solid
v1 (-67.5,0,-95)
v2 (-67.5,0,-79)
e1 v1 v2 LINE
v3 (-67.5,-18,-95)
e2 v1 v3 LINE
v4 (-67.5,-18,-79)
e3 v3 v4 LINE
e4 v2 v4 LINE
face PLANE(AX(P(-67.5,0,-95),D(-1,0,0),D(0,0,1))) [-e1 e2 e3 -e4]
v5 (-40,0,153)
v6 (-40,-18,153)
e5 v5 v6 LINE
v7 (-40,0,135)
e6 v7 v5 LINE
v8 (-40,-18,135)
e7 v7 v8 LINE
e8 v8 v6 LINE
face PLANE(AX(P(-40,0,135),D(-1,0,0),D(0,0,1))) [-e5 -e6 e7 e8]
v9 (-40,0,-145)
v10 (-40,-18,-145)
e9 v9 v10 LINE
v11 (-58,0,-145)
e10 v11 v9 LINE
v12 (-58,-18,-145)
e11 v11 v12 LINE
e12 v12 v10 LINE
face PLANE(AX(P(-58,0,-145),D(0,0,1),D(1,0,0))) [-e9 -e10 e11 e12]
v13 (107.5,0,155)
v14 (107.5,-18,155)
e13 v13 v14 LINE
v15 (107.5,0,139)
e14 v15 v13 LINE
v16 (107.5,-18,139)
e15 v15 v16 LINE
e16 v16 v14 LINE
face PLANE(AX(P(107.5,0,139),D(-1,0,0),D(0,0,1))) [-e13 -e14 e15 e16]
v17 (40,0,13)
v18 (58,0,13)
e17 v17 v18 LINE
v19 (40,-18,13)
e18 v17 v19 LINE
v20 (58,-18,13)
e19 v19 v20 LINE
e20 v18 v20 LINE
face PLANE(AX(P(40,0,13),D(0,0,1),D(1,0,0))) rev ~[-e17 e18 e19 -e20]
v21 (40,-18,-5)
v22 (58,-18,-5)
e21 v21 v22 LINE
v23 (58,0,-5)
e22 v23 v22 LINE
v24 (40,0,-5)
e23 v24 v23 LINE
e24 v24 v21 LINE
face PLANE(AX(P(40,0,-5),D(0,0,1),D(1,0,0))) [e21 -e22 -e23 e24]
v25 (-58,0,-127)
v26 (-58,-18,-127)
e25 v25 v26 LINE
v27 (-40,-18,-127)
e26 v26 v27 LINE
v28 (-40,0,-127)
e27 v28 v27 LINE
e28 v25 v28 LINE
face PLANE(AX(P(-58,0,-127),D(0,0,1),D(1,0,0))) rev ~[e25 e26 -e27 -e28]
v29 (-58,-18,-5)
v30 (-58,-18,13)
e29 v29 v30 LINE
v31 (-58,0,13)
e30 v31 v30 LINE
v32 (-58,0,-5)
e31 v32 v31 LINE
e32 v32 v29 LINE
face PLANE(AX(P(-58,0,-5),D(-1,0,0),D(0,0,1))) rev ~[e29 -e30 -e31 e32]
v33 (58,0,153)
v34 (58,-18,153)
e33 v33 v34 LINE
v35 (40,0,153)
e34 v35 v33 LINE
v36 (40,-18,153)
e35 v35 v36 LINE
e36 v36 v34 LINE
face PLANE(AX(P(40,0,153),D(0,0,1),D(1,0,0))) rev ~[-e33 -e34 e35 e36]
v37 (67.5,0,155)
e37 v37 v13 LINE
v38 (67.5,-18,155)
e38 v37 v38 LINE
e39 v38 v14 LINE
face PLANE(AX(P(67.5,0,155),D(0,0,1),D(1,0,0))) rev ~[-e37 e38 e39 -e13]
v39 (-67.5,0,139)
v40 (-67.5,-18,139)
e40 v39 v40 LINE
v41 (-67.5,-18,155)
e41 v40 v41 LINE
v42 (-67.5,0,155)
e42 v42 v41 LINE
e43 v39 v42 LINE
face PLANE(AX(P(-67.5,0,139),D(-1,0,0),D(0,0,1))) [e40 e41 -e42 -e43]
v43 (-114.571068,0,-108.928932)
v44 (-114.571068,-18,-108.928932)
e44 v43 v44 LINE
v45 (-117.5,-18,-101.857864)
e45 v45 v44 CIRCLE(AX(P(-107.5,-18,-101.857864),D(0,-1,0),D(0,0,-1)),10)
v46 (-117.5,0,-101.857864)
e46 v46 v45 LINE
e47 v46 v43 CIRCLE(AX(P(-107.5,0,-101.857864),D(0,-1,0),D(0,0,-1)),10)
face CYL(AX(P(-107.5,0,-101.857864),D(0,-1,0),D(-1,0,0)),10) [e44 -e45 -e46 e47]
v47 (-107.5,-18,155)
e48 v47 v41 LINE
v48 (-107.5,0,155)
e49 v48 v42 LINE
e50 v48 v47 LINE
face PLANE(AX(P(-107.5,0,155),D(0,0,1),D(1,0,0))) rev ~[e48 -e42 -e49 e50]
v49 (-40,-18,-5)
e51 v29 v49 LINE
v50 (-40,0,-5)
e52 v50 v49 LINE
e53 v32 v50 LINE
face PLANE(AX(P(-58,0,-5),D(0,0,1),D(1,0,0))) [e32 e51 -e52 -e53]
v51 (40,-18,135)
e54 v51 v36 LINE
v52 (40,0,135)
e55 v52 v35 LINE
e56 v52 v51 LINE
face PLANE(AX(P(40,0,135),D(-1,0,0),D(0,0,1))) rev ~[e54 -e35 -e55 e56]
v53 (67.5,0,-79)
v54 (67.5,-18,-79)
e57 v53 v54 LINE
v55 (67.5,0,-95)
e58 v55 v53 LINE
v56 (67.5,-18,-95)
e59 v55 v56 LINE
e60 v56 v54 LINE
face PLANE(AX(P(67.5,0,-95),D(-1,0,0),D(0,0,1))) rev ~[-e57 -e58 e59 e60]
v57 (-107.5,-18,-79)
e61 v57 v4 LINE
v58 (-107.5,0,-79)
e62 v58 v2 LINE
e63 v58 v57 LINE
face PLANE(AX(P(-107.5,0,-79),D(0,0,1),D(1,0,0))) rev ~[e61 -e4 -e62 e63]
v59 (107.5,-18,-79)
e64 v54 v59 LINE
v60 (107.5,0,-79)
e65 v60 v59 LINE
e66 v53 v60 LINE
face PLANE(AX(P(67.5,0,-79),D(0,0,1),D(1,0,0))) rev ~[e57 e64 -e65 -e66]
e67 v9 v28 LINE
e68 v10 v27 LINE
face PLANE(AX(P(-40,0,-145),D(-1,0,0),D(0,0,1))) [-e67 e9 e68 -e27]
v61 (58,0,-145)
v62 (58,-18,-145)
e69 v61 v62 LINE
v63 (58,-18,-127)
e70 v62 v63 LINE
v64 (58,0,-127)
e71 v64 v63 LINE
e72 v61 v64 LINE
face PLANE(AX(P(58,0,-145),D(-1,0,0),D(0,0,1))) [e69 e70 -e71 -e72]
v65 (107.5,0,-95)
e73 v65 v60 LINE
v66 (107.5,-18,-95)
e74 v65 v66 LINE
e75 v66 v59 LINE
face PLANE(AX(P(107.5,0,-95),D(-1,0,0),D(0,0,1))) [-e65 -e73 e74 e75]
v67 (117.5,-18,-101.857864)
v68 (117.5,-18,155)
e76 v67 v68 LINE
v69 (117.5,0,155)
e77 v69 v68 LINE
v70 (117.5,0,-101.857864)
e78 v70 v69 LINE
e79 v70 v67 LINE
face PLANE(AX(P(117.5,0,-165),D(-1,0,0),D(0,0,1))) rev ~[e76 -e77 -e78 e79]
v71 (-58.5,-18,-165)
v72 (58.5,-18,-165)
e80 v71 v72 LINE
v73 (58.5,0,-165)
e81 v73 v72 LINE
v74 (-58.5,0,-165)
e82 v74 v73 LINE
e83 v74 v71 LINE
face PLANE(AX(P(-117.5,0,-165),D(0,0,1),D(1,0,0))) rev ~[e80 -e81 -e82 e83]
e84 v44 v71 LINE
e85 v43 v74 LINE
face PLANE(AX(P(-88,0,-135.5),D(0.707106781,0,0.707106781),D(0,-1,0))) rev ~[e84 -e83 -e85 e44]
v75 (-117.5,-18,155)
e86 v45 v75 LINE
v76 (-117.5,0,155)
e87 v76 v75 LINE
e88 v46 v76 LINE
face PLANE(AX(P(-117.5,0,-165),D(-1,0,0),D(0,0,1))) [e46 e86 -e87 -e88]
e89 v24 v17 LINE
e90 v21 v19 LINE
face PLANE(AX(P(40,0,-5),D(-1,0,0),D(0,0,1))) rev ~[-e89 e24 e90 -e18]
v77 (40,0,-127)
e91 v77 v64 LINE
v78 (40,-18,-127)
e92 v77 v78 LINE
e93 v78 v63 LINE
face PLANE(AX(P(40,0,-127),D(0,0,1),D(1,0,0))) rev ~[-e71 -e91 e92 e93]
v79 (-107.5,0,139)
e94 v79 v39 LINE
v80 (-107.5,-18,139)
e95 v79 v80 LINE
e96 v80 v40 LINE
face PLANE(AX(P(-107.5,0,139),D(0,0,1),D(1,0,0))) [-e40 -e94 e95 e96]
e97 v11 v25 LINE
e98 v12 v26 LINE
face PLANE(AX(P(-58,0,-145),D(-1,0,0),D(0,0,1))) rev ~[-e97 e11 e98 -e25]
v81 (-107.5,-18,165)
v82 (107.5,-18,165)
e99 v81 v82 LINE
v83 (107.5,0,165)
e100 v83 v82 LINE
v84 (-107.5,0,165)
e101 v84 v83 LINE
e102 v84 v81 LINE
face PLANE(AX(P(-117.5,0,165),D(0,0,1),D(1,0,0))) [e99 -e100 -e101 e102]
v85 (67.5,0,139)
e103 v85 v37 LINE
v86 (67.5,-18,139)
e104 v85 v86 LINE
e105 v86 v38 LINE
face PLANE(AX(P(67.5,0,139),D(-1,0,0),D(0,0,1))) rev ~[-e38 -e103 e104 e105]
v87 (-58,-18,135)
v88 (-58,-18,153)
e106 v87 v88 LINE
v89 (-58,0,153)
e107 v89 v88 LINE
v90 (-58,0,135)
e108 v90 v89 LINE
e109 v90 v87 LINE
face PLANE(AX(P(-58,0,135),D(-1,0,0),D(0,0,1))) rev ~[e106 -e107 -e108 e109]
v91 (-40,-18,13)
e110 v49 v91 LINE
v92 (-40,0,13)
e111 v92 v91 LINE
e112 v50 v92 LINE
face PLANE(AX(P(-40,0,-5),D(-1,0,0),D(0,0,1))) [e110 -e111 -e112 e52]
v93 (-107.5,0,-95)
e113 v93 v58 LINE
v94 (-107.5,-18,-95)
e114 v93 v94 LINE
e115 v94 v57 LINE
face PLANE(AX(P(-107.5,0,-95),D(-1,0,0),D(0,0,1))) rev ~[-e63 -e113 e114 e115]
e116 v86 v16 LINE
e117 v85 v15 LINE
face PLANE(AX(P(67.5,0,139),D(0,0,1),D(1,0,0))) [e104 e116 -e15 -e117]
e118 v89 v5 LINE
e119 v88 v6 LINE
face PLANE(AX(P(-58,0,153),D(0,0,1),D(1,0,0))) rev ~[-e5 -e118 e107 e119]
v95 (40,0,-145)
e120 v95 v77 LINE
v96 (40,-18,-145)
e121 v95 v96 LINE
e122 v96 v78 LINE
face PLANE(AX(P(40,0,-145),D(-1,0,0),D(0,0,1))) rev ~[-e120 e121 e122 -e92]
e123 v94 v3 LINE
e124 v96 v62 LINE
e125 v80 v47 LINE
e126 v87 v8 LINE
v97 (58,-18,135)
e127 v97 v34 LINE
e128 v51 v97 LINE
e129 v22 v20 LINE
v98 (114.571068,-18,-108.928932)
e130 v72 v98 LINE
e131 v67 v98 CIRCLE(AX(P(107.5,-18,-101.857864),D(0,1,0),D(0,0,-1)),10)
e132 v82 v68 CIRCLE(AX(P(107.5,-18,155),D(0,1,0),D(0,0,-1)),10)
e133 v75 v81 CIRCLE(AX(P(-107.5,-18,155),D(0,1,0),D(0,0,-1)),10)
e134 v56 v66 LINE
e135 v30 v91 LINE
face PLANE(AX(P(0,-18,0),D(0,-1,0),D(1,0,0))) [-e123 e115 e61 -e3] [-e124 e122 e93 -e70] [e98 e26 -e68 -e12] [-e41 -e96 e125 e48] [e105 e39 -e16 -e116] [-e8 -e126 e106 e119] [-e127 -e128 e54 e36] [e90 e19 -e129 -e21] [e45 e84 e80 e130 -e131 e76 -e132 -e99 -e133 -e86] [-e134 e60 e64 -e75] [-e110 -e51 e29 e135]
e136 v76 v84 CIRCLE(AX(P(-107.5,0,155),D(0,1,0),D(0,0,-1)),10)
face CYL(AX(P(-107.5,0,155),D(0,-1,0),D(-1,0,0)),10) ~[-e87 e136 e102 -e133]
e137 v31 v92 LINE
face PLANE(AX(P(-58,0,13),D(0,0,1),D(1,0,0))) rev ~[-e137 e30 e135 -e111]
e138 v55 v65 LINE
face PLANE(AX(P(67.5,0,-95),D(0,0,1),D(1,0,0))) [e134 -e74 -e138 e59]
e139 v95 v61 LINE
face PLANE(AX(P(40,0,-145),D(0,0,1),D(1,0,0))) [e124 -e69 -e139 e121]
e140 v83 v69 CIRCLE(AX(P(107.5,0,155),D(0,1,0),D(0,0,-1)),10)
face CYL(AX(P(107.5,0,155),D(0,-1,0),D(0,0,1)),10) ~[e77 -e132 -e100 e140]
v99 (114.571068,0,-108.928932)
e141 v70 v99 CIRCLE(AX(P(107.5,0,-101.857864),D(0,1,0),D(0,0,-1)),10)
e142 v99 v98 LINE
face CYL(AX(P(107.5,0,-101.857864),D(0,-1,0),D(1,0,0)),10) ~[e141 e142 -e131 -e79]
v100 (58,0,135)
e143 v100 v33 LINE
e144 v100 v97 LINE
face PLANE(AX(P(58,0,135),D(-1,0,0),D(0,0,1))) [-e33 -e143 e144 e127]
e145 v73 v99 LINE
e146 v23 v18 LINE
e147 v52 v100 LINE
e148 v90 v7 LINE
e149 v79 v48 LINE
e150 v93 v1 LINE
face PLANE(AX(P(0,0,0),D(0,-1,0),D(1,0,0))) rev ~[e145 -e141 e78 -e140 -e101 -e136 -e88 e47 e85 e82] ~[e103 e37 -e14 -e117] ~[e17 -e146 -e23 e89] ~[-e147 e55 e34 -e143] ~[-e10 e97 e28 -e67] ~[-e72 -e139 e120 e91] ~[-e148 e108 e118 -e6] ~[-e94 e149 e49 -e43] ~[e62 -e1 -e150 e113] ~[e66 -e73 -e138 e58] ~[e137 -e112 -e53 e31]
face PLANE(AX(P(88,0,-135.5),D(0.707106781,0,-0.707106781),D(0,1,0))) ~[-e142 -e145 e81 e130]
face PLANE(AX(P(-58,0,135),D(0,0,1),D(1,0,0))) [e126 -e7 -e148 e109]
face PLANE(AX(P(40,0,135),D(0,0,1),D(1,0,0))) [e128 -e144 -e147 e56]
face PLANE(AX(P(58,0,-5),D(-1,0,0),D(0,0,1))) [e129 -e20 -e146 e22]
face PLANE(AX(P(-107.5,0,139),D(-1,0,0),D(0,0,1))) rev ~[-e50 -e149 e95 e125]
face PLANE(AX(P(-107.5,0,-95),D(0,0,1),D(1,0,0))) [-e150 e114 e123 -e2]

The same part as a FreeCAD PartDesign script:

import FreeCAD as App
import Part
import Sketcher


def edges_at(feature, points):
    """Names of the edges that pass closest to the given points."""
    edges = feature.Shape.Edges
    near = lambda p: min(range(len(edges)), key=lambda i: edges[i].distToShape(Part.Vertex(*p))[0])
    return sorted({f"Edge{near(p) + 1}" for p in points})


def add_polygon(sketch, points):
    """Adds a closed chain of lines whose ends are joined by coincident constraints."""
    first, n = sketch.GeometryCount, len(points)
    for a, b in zip(points, points[1:] + points[:1]):
        sketch.addGeometry(Part.LineSegment(App.Vector(*a, 0), App.Vector(*b, 0)), False)
    for i in range(n):
        sketch.addConstraint(Sketcher.Constraint("Coincident", first + i, 2, first + (i + 1) % n, 1))

doc = App.newDocument("Part")
body = doc.addObject("PartDesign::Body", "Body")

# Sketch on XZ plane
sketch1 = body.newObject("Sketcher::SketchObject", "Sketch")
sketch1.AttachmentSupport = (doc.getObject("XZ_Plane"), [""])
sketch1.MapMode = "FlatFace"
add_polygon(sketch1, [(-118, 165), (-118, -165), (118, -165), (118, 165)])  # lines 0-3
add_polygon(sketch1, [(-68, -95), (-108, -95), (-108, -79), (-68, -79)])  # lines 4-7
add_polygon(sketch1, [(-40, -145), (-58, -145), (-58, -127), (-40, -127)])  # lines 8-11
add_polygon(sketch1, [(-40, -5), (-58, -5), (-58, 13), (-40, 13)])  # lines 12-15
add_polygon(sketch1, [(58, -145), (40, -145), (40, -127), (58, -127)])  # lines 16-19
add_polygon(sketch1, [(108, -95), (68, -95), (68, -79), (108, -79)])  # lines 20-23
add_polygon(sketch1, [(58, -5), (40, -5), (40, 13), (58, 13)])  # lines 24-27
add_polygon(sketch1, [(-68, 139), (-108, 139), (-108, 155), (-68, 155)])  # lines 28-31
add_polygon(sketch1, [(-40, 135), (-58, 135), (-58, 153), (-40, 153)])  # lines 32-35
add_polygon(sketch1, [(58, 135), (40, 135), (40, 153), (58, 153)])  # lines 36-39
add_polygon(sketch1, [(108, 139), (68, 139), (68, 155), (108, 155)])  # lines 40-43
sketch1.addConstraint(Sketcher.Constraint("Vertical", 0))
sketch1.addConstraint(Sketcher.Constraint("Horizontal", 1))
sketch1.addConstraint(Sketcher.Constraint("Vertical", 2))
sketch1.addConstraint(Sketcher.Constraint("Horizontal", 3))
sketch1.addConstraint(Sketcher.Constraint("Horizontal", 4))
sketch1.addConstraint(Sketcher.Constraint("Vertical", 5))
sketch1.addConstraint(Sketcher.Constraint("Horizontal", 6))
sketch1.addConstraint(Sketcher.Constraint("Vertical", 7))
sketch1.addConstraint(Sketcher.Constraint("Horizontal", 8))
sketch1.addConstraint(Sketcher.Constraint("Vertical", 9))
sketch1.addConstraint(Sketcher.Constraint("Horizontal", 10))
sketch1.addConstraint(Sketcher.Constraint("Vertical", 11))
sketch1.addConstraint(Sketcher.Constraint("Horizontal", 12))
sketch1.addConstraint(Sketcher.Constraint("Vertical", 13))
sketch1.addConstraint(Sketcher.Constraint("Horizontal", 14))
sketch1.addConstraint(Sketcher.Constraint("Vertical", 15))
sketch1.addConstraint(Sketcher.Constraint("Horizontal", 16))
sketch1.addConstraint(Sketcher.Constraint("Vertical", 17))
sketch1.addConstraint(Sketcher.Constraint("Horizontal", 18))
sketch1.addConstraint(Sketcher.Constraint("Vertical", 19))
sketch1.addConstraint(Sketcher.Constraint("Horizontal", 20))
sketch1.addConstraint(Sketcher.Constraint("Vertical", 21))
sketch1.addConstraint(Sketcher.Constraint("Horizontal", 22))
sketch1.addConstraint(Sketcher.Constraint("Vertical", 23))
sketch1.addConstraint(Sketcher.Constraint("Horizontal", 24))
sketch1.addConstraint(Sketcher.Constraint("Vertical", 25))
sketch1.addConstraint(Sketcher.Constraint("Horizontal", 26))
sketch1.addConstraint(Sketcher.Constraint("Vertical", 27))
sketch1.addConstraint(Sketcher.Constraint("Horizontal", 28))
sketch1.addConstraint(Sketcher.Constraint("Vertical", 29))
sketch1.addConstraint(Sketcher.Constraint("Horizontal", 30))
sketch1.addConstraint(Sketcher.Constraint("Vertical", 31))
sketch1.addConstraint(Sketcher.Constraint("Horizontal", 32))
sketch1.addConstraint(Sketcher.Constraint("Vertical", 33))
sketch1.addConstraint(Sketcher.Constraint("Horizontal", 34))
sketch1.addConstraint(Sketcher.Constraint("Vertical", 35))
sketch1.addConstraint(Sketcher.Constraint("Horizontal", 36))
sketch1.addConstraint(Sketcher.Constraint("Vertical", 37))
sketch1.addConstraint(Sketcher.Constraint("Horizontal", 38))
sketch1.addConstraint(Sketcher.Constraint("Vertical", 39))
sketch1.addConstraint(Sketcher.Constraint("Horizontal", 40))
sketch1.addConstraint(Sketcher.Constraint("Vertical", 41))
sketch1.addConstraint(Sketcher.Constraint("Horizontal", 42))
sketch1.addConstraint(Sketcher.Constraint("Vertical", 43))
sketch1.addConstraint(Sketcher.Constraint("Symmetric", 0, 2, 2, 2, -1, 1))
sketch1.addConstraint(Sketcher.Constraint("Symmetric", 11, 2, 16, 2, -2))
sketch1.addConstraint(Sketcher.Constraint("Symmetric", 9, 2, 18, 2, -2))
sketch1.addConstraint(Sketcher.Constraint("Symmetric", 7, 2, 20, 2, -2))
sketch1.addConstraint(Sketcher.Constraint("Symmetric", 5, 2, 22, 2, -2))
sketch1.addConstraint(Sketcher.Constraint("Symmetric", 15, 2, 24, 2, -2))
sketch1.addConstraint(Sketcher.Constraint("Symmetric", 13, 2, 26, 2, -2))
sketch1.addConstraint(Sketcher.Constraint("Symmetric", 35, 2, 36, 2, -2))
sketch1.addConstraint(Sketcher.Constraint("Symmetric", 33, 2, 38, 2, -2))
sketch1.addConstraint(Sketcher.Constraint("Symmetric", 31, 2, 40, 2, -2))
sketch1.addConstraint(Sketcher.Constraint("Symmetric", 29, 2, 42, 2, -2))
sketch1.addConstraint(Sketcher.Constraint("Vertical", 9, 2, 12, 2))
sketch1.addConstraint(Sketcher.Constraint("Vertical", 11, 2, 14, 2))
sketch1.addConstraint(Sketcher.Constraint("Vertical", 5, 2, 28, 2))
sketch1.addConstraint(Sketcher.Constraint("Vertical", 7, 2, 30, 2))
sketch1.addConstraint(Sketcher.Constraint("Vertical", 13, 2, 32, 2))
sketch1.addConstraint(Sketcher.Constraint("Vertical", 15, 2, 34, 2))
sketch1.addConstraint(Sketcher.Constraint("Equal", 38, 9))
sketch1.addConstraint(Sketcher.Constraint("Equal", 11, 13))
sketch1.addConstraint(Sketcher.Constraint("Equal", 23, 29))
sketch1.addConstraint(Sketcher.Constraint("Equal", 27, 33))
sketch1.addConstraint(Sketcher.Constraint("DistanceX", 1, 1, 1, 2, 235.0))
sketch1.addConstraint(Sketcher.Constraint("DistanceX", 4, 2, 4, 1, 40.0))
sketch1.addConstraint(Sketcher.Constraint("DistanceX", 8, 2, 8, 1, 18.0))
sketch1.addConstraint(Sketcher.Constraint("DistanceY", 0, 2, 0, 1, 330.0))
sketch1.addConstraint(Sketcher.Constraint("DistanceY", 5, 1, 5, 2, 16.0))
sketch1.addConstraint(Sketcher.Constraint("DistanceY", 4, 2, -1, 1, 95.0))
sketch1.addConstraint(Sketcher.Constraint("DistanceX", 8, 2, -1, 1, 58.0))
sketch1.addConstraint(Sketcher.Constraint("DistanceY", 8, 2, -1, 1, 145.0))
sketch1.addConstraint(Sketcher.Constraint("DistanceY", 12, 2, -1, 1, 5.0))
sketch1.addConstraint(Sketcher.Constraint("DistanceY", -1, 1, 28, 2, 139.0))
sketch1.addConstraint(Sketcher.Constraint("DistanceY", -1, 1, 32, 2, 135.0))
sketch1.addConstraint(Sketcher.Constraint("DistanceX", 0, 2, 4, 2, 10.0))
pad1 = body.newObject("PartDesign::Pad", "Pad")
pad1.Profile = sketch1
pad1.Length = 18
doc.recompute()

chamfer = body.newObject("PartDesign::Chamfer", "Chamfer")
chamfer.Base = (pad1, edges_at(pad1, [(117.5, -9, -165), (-117.5, -9, -165)]))
chamfer.Size = 59
doc.recompute()

fillet = body.newObject("PartDesign::Fillet", "Fillet")
fillet.Base = (chamfer, edges_at(chamfer, [
    (117.5, -9, 165),
    (117.5, -9, -106),
    (-117.5, -9, 165),
    (-117.5, -9, -106),
]))
fillet.Radius = 10

doc.recompute()
